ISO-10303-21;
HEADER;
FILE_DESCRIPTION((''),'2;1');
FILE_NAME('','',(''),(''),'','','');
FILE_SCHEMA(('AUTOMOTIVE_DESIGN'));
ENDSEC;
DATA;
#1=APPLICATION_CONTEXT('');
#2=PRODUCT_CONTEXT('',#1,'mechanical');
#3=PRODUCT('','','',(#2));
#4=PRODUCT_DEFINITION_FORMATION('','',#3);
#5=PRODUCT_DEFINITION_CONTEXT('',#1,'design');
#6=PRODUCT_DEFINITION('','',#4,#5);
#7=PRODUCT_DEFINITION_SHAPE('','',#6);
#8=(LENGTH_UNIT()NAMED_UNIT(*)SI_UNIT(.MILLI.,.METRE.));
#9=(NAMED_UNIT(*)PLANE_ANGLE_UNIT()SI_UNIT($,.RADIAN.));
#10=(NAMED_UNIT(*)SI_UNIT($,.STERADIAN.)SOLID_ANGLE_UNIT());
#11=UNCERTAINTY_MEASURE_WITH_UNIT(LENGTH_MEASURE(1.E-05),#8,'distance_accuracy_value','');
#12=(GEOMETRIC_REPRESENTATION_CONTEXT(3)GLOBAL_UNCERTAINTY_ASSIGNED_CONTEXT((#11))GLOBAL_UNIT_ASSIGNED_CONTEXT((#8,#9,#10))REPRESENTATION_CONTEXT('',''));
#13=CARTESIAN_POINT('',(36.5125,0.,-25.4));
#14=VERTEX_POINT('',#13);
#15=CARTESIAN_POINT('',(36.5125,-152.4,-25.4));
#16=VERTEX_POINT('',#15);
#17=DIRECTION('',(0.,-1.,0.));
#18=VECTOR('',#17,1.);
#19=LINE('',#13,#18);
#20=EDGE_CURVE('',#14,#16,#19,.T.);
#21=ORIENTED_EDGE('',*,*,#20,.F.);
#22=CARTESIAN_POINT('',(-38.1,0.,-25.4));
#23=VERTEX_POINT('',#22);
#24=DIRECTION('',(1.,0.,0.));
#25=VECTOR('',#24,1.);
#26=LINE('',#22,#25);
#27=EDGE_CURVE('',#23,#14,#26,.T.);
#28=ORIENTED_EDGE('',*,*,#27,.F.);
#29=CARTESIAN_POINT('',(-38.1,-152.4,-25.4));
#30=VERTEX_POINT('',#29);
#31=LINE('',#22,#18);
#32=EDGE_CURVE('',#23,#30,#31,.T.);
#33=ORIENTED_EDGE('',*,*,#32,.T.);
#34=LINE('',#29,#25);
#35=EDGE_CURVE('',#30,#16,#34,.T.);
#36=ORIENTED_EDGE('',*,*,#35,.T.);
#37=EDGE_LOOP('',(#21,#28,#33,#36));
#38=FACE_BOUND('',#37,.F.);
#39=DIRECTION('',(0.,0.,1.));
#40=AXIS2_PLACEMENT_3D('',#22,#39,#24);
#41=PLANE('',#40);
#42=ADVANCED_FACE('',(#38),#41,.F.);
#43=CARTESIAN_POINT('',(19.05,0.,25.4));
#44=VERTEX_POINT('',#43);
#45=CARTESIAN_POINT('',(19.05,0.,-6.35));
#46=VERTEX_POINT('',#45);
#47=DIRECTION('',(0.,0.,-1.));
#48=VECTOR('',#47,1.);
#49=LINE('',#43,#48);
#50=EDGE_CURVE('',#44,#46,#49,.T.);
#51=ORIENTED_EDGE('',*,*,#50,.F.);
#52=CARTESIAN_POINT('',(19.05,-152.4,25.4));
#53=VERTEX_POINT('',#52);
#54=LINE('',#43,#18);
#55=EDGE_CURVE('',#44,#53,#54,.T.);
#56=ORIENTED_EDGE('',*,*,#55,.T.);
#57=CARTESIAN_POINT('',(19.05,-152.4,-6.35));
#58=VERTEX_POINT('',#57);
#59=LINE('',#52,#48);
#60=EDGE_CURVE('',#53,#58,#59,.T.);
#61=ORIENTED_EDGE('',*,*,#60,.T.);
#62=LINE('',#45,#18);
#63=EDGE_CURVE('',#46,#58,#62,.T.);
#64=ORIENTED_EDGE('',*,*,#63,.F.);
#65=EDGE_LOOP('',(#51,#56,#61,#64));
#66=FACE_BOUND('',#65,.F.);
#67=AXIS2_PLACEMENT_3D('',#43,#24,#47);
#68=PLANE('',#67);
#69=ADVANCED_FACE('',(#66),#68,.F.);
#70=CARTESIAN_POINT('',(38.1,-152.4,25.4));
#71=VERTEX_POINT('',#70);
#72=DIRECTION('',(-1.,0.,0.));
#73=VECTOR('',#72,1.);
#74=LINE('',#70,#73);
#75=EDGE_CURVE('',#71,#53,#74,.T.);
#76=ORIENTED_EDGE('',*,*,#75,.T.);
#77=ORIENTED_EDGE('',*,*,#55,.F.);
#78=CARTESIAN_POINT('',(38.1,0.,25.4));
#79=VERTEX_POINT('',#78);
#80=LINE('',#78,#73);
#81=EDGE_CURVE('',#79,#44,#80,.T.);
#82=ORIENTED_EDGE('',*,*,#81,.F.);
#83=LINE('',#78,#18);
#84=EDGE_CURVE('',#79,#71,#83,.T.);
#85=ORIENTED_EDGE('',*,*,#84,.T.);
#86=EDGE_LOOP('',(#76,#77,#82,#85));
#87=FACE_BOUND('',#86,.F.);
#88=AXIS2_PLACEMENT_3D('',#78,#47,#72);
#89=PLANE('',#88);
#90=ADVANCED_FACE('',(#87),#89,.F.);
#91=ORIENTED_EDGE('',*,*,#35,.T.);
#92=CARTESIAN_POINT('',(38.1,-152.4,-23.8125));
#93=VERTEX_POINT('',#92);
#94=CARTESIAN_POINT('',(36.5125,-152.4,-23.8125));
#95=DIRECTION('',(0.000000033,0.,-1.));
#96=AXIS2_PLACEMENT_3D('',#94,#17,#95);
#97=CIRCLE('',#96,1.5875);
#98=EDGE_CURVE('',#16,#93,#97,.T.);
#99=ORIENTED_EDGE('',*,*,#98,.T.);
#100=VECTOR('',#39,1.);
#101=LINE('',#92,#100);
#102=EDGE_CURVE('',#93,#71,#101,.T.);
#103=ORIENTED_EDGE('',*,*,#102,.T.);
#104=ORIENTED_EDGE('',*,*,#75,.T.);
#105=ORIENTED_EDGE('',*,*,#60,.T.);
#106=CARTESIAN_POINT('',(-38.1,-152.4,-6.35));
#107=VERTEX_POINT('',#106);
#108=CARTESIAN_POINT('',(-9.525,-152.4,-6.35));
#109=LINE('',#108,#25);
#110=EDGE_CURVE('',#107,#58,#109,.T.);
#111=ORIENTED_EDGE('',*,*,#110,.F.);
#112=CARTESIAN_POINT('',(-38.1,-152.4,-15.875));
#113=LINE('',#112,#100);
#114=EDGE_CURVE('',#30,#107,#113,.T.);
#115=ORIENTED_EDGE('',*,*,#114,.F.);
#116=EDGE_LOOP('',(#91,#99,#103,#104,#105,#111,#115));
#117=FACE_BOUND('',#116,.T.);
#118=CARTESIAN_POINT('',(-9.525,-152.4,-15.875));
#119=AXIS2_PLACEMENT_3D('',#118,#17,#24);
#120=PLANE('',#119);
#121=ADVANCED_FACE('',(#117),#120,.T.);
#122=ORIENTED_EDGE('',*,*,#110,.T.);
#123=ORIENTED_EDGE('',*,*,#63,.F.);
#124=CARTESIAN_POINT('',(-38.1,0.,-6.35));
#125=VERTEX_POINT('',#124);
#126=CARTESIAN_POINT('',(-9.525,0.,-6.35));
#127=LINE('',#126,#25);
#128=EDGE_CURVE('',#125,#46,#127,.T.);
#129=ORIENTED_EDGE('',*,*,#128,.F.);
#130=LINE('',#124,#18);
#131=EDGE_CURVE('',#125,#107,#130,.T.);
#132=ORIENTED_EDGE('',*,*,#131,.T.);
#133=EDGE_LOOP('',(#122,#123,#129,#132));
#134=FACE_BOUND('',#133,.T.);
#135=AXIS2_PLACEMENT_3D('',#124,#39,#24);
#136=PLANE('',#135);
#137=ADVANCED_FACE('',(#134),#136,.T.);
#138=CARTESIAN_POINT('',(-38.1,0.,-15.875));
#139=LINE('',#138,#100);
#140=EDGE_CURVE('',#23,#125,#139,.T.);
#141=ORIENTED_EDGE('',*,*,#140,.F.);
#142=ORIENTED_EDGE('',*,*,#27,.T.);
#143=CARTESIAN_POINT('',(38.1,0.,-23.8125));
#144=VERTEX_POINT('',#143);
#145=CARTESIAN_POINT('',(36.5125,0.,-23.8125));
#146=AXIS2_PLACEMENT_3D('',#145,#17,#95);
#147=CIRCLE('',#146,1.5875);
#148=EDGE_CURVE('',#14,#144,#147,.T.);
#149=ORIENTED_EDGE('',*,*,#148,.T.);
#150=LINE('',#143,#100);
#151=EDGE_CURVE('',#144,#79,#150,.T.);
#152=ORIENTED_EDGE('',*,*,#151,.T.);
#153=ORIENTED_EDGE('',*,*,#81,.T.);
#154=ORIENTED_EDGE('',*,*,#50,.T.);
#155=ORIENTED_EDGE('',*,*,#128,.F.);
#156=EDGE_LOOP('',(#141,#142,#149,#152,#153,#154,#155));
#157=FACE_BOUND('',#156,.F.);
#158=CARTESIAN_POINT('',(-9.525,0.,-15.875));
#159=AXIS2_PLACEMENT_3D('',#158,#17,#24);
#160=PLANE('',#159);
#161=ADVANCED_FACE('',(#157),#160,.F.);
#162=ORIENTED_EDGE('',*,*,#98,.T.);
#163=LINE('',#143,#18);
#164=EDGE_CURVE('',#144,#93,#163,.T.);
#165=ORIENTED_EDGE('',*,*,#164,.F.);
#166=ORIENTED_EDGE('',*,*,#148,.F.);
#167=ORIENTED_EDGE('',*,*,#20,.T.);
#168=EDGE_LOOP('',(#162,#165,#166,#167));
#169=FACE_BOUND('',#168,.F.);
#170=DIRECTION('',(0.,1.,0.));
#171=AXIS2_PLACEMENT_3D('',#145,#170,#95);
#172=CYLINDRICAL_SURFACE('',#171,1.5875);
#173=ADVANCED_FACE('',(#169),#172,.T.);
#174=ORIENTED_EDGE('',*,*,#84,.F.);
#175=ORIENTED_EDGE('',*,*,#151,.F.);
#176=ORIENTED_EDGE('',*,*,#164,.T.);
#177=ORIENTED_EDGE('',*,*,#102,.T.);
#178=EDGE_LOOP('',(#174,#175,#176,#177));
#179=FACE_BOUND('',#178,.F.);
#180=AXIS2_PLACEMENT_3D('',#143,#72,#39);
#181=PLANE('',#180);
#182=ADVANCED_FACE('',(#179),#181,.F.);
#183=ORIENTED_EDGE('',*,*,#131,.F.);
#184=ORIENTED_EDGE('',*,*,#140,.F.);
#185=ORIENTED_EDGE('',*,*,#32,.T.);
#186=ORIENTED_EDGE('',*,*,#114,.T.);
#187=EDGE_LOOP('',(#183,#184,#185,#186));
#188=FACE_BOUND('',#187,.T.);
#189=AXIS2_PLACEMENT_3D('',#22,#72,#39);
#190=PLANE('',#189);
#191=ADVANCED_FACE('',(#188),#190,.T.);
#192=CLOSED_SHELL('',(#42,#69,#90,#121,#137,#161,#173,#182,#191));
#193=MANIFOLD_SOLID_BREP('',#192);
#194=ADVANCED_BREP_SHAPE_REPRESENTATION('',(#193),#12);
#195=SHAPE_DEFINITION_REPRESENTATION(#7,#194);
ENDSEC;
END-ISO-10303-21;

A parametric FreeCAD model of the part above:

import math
import FreeCAD as App
import Part
import Sketcher
from FreeCAD import Vector
Q = App.Units.Quantity

doc = App.newDocument("Part")
body = doc.addObject("PartDesign::Body", "Body")

sketch1 = doc.addObject("Sketcher::SketchObject", "Sketch")
body.addObject(sketch1)
sketch1.AttachmentSupport = (doc.XZ_Plane, [""])
sketch1.MapMode = "FlatFace"
sketch1.addGeometry(Part.LineSegment(Vector(-38.1, -6.35, 0), Vector(-38.1, -25.4, 0)), False)
sketch1.addGeometry(Part.LineSegment(Vector(-38.1, -25.4, 0), Vector(36.5125, -25.4, 0)), False)
sketch1.addGeometry(Part.ArcOfCircle(Part.Circle(Vector(36.5125, -23.8125, 0), Vector(0, 0, 1), 1.5875), math.radians(-89.999998), math.radians(-0.000002)), False)
sketch1.addGeometry(Part.LineSegment(Vector(38.1, -23.8125, 0), Vector(38.1, 25.4, 0)), False)
sketch1.addGeometry(Part.LineSegment(Vector(38.1, 25.4, 0), Vector(19.05, 25.4, 0)), False)
sketch1.addGeometry(Part.LineSegment(Vector(19.05, 25.4, 0), Vector(19.05, -6.35, 0)), False)
sketch1.addGeometry(Part.LineSegment(Vector(19.05, -6.35, 0), Vector(-38.1, -6.35, 0)), False)
sketch1.addConstraint(Sketcher.Constraint("Coincident", 0, 2, 1, 1))
sketch1.addConstraint(Sketcher.Constraint("Tangent", 1, 2, 2, 1))
sketch1.addConstraint(Sketcher.Constraint("Tangent", 2, 2, 3, 1))
sketch1.addConstraint(Sketcher.Constraint("Coincident", 3, 2, 4, 1))
sketch1.addConstraint(Sketcher.Constraint("Coincident", 4, 2, 5, 1))
sketch1.addConstraint(Sketcher.Constraint("Coincident", 5, 2, 6, 1))
sketch1.addConstraint(Sketcher.Constraint("Coincident", 6, 2, 0, 1))
sketch1.addConstraint(Sketcher.Constraint("Vertical", 0))
sketch1.addConstraint(Sketcher.Constraint("Horizontal", 1))
sketch1.addConstraint(Sketcher.Constraint("Vertical", 3))
sketch1.addConstraint(Sketcher.Constraint("Horizontal", 4))
sketch1.addConstraint(Sketcher.Constraint("Vertical", 5))
sketch1.addConstraint(Sketcher.Constraint("Horizontal", 6))
sketch1.addConstraint(Sketcher.Constraint("Symmetric", 0, 2, 3, 2, -1, 1))
sketch1.addConstraint(Sketcher.Constraint("Equal", 4, 0))
sketch1.addConstraint(Sketcher.Constraint("DistanceY", 0, 2, -1, 1, Q("1 in")))
sketch1.addConstraint(Sketcher.Constraint("Radius", 2, Q("0.0625 in")))
sketch1.addConstraint(Sketcher.Constraint("DistanceX", 0, 2, 2, 2, Q("3 in")))
sketch1.addConstraint(Sketcher.Constraint("DistanceX", 4, 2, 4, 1, Q("0.75 in")))
pad1 = doc.addObject("PartDesign::Pad", "Pad")
body.addObject(pad1)
pad1.Profile = sketch1
pad1.Length = Q("6 in")

doc.recompute()
